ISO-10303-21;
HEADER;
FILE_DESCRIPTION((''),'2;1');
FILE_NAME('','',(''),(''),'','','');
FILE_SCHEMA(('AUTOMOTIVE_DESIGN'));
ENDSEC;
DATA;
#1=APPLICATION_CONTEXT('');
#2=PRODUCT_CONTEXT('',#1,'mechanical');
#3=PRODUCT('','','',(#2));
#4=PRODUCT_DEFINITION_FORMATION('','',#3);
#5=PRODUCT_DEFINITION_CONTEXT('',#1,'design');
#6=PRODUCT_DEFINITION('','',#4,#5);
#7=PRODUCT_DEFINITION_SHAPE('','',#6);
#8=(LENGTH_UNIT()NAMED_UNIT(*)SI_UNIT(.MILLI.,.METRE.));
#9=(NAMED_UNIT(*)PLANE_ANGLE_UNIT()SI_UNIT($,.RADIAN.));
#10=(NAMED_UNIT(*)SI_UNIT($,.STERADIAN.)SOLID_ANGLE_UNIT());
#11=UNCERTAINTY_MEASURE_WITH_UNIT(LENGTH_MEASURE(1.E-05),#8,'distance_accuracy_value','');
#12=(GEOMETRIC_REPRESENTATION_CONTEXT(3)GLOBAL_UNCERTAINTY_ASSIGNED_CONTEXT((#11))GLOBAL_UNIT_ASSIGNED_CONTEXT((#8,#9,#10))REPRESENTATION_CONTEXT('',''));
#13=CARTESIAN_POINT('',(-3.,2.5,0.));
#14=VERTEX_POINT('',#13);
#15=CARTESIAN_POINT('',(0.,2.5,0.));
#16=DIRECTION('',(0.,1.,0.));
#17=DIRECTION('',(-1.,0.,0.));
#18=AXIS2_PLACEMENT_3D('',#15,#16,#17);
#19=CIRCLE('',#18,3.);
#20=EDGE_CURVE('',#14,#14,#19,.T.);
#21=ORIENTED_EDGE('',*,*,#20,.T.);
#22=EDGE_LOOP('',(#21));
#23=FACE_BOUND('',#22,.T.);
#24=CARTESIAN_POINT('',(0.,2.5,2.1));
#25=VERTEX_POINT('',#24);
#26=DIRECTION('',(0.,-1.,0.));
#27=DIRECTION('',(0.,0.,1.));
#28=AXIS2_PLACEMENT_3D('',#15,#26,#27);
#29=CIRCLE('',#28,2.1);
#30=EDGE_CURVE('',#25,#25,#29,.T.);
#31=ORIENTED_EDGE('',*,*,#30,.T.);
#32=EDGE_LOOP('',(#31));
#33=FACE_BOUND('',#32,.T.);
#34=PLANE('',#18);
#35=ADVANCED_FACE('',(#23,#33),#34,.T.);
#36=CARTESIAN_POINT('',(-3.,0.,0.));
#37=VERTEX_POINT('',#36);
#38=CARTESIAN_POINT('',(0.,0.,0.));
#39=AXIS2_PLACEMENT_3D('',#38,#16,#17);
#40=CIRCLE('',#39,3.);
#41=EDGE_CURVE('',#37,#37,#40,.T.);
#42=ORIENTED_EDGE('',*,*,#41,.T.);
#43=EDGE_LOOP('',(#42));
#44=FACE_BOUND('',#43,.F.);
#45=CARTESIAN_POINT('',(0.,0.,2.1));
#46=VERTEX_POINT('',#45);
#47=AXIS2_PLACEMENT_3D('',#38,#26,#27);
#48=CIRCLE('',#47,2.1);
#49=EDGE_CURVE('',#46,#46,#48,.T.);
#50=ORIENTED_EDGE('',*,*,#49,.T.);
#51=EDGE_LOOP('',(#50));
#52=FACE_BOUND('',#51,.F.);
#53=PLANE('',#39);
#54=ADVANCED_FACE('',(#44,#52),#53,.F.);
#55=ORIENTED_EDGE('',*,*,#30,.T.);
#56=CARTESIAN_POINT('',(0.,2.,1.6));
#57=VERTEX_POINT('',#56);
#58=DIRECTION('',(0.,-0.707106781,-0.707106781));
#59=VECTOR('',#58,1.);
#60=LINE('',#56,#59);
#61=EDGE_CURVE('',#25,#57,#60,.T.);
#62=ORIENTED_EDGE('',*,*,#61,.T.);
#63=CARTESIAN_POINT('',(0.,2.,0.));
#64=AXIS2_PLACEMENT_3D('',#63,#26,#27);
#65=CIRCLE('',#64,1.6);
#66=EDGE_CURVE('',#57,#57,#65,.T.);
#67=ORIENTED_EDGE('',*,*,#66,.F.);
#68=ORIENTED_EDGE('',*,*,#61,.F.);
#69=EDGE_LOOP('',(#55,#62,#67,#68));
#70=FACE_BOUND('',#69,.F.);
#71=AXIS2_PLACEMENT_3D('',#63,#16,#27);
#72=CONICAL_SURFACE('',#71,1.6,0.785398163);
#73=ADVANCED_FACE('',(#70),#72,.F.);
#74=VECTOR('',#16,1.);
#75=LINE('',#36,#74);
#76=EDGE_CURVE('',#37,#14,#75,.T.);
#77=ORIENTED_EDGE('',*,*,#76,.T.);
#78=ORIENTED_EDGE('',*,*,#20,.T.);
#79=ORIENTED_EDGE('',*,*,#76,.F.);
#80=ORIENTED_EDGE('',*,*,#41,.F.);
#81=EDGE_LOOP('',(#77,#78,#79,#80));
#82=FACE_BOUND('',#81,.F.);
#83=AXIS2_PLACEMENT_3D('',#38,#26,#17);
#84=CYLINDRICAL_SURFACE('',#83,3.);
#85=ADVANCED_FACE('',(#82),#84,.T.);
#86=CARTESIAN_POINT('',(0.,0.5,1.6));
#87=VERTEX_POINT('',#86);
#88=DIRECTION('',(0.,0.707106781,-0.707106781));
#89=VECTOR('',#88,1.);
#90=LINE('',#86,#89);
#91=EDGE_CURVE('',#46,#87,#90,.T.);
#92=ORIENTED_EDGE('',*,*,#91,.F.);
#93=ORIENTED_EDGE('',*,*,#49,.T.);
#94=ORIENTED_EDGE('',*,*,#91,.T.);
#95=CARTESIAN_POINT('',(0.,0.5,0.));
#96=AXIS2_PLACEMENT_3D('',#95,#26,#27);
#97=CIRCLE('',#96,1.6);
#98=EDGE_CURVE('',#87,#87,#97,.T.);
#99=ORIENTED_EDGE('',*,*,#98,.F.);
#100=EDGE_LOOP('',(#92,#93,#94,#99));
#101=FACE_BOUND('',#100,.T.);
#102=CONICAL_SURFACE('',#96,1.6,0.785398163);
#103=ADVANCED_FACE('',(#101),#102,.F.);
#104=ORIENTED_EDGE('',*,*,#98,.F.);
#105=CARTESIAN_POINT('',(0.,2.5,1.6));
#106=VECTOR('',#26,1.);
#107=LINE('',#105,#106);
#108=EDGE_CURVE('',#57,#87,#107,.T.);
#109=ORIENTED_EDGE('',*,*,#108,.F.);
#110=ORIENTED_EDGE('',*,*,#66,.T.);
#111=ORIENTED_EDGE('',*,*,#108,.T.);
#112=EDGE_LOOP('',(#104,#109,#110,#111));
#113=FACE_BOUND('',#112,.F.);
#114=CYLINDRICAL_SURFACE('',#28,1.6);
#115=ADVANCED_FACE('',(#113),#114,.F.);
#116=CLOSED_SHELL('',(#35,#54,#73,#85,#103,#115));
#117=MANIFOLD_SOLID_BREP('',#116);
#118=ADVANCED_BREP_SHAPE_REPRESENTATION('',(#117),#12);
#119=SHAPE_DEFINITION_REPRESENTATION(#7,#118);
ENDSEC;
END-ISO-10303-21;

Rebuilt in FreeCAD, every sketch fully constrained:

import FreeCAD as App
import Part
import Sketcher
from FreeCAD import Vector


def edges_at(feature, points):
    """Names of the edges that pass closest to the given points."""
    edges = feature.Shape.Edges
    near = lambda p: min(range(len(edges)), key=lambda i: edges[i].distToShape(Part.Vertex(*p))[0])
    return sorted({f"Edge{near(p) + 1}" for p in points})

doc = App.newDocument("Part")
body = doc.addObject("PartDesign::Body", "Body")

# Sketch on XZ plane
sketch1 = doc.addObject("Sketcher::SketchObject", "Sketch")
body.addObject(sketch1)
sketch1.AttachmentSupport = (doc.XZ_Plane, [""])
sketch1.MapMode = "FlatFace"
sketch1.addGeometry(Part.Circle(Vector(0, 0, 0), Vector(0, 0, 1), 3), False)
sketch1.addConstraint(Sketcher.Constraint("Coincident", 0, 3, -1, 1))
sketch1.addConstraint(Sketcher.Constraint("Diameter", 0, 6.0))
pad1 = doc.addObject("PartDesign::Pad", "Pad")
body.addObject(pad1)
pad1.Profile = sketch1
pad1.Length = 2.5
pad1.Reversed = True

# Sketch on XZ plane
sketch2 = doc.addObject("Sketcher::SketchObject", "Sketch001")
body.addObject(sketch2)
sketch2.AttachmentSupport = (doc.XZ_Plane, [""])
sketch2.MapMode = "FlatFace"
sketch2.AttachmentOffset = App.Placement(Vector(0, 0, -2.5), App.Rotation())
sketch2.addGeometry(Part.Circle(Vector(0, 0, 0), Vector(0, 0, 1), 1.6), False)
sketch2.addConstraint(Sketcher.Constraint("Coincident", 0, 3, -1, 1))
sketch2.addConstraint(Sketcher.Constraint("Diameter", 0, 3.2))
doc.recompute()
hole = doc.addObject("PartDesign::Hole", "Hole")
body.addObject(hole)
hole.Profile = sketch2
hole.ThreadType = "None"
hole.Diameter = 3.2
hole.DepthType = "ThroughAll"
hole.Reversed = True
doc.recompute()

chamfer = doc.addObject("PartDesign::Chamfer", "Chamfer")
body.addObject(chamfer)
chamfer.Base = (hole, edges_at(hole, [(0, 2.5, -1.6), (0, 0, -1.6)]))
chamfer.Size = 0.5

doc.recompute()
